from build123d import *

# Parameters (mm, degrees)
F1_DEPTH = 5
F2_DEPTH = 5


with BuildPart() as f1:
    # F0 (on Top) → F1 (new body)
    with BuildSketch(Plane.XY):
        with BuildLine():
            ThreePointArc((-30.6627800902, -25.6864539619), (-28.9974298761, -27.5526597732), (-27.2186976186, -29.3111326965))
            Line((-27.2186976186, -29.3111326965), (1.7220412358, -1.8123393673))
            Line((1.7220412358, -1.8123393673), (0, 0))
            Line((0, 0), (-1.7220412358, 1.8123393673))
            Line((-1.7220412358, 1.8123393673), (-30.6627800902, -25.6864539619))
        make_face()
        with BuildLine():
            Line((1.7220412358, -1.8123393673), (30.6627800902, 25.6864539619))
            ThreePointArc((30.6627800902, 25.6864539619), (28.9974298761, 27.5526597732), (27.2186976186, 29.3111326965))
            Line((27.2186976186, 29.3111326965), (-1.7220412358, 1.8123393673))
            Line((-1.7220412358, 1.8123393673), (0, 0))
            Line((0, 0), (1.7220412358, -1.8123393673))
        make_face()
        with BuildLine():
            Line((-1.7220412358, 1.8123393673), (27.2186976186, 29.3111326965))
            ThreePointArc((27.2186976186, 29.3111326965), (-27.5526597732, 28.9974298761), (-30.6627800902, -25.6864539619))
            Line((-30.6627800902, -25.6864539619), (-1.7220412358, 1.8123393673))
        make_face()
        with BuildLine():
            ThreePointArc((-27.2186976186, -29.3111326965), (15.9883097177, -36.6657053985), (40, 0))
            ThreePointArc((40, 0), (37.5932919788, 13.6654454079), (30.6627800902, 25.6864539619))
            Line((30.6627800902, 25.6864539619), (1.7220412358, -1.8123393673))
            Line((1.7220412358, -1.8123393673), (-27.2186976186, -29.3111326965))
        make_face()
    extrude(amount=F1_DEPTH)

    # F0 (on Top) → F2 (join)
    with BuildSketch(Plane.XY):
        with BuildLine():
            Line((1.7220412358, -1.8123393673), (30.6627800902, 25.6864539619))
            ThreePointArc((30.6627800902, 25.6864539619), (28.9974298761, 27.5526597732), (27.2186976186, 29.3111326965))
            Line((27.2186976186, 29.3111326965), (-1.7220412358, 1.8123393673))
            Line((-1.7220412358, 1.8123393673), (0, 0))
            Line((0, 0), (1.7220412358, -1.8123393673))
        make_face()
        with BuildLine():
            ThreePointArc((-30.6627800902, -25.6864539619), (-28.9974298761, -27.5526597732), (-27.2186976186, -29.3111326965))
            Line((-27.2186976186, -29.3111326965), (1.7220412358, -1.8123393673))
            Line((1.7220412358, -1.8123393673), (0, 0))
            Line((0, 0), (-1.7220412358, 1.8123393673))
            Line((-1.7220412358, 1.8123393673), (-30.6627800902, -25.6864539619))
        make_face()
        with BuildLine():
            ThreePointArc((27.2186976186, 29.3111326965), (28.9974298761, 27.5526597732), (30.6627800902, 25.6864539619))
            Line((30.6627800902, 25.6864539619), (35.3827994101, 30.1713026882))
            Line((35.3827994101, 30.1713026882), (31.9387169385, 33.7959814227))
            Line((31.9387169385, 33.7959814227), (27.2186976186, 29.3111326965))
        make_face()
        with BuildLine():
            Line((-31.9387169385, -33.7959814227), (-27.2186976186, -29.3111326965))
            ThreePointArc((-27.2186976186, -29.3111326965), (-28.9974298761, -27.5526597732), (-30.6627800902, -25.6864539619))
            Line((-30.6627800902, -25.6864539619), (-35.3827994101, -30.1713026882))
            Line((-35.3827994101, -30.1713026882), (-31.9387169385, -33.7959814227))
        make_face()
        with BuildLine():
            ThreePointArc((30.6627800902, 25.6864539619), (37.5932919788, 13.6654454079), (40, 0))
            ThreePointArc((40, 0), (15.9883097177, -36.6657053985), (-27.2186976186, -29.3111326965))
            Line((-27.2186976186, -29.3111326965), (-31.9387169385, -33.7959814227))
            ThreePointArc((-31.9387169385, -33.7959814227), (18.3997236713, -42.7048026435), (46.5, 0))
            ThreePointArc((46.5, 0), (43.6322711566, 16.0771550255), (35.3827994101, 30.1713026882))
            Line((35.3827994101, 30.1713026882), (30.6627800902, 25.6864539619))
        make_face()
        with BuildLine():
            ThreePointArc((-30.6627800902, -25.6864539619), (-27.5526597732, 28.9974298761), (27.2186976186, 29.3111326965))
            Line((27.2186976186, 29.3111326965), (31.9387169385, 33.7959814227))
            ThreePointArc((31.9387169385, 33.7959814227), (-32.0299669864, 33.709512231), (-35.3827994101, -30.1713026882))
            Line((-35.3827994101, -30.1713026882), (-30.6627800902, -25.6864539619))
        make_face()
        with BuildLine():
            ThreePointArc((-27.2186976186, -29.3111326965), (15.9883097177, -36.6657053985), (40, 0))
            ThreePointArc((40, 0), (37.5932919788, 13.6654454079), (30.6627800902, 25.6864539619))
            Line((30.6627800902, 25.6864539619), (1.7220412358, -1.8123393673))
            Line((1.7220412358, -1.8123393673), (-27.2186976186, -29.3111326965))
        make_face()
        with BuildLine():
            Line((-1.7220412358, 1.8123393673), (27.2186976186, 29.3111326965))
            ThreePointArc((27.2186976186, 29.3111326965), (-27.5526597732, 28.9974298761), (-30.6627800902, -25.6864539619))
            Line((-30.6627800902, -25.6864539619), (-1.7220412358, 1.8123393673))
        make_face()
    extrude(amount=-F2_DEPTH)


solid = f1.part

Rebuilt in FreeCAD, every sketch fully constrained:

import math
import FreeCAD as App
import Part
import Sketcher

V = App.Vector
Q = App.Units.Quantity

doc = App.newDocument("Part")
body = doc.addObject("PartDesign::Body", "Body")

# Sketch on XY plane
sketch1 = body.newObject("Sketcher::SketchObject", "Sketch")
sketch1.AttachmentSupport = (doc.getObject("XY_Plane"), [""])
sketch1.MapMode = "FlatFace"
sketch1.addGeometry(Part.ArcOfCircle(Part.Circle(V(0, 0, 0), V(0, 0, 1), 40), math.radians(-140.05), math.radians(-132.88)), False)
sketch1.addGeometry(Part.ArcOfCircle(Part.Circle(V(0, 0, 0), V(0, 0, 1), 40), math.radians(-133), math.radians(40)), False)
sketch1.addGeometry(Part.ArcOfCircle(Part.Circle(V(0, 0, 0), V(0, 0, 1), 40), math.radians(39.95), math.radians(47.12)), False)
sketch1.addGeometry(Part.ArcOfCircle(Part.Circle(V(0, 0, 0), V(0, 0, 1), 40), math.radians(47), math.radians(220)), False)
sketch1.addConstraint(Sketcher.Constraint("Tangent", 0, 2, 1, 1))
sketch1.addConstraint(Sketcher.Constraint("Tangent", 1, 2, 2, 1))
sketch1.addConstraint(Sketcher.Constraint("Tangent", 2, 2, 3, 1))
sketch1.addConstraint(Sketcher.Constraint("Tangent", 3, 2, 0, 1))
sketch1.addConstraint(Sketcher.Constraint("Coincident", 0, 3, -1, 1))
sketch1.addConstraint(Sketcher.Constraint("Equal", 0, 1))
sketch1.addConstraint(Sketcher.Constraint("Radius", 0, Q("40 mm")))
sketch1.addConstraint(Sketcher.Constraint("DistanceX", -1, 1, 1, 2, Q("30.66278 mm")))
sketch1.addConstraint(Sketcher.Constraint("DistanceX", 3, 2, -1, 1, Q("30.66278 mm")))
sketch1.addConstraint(Sketcher.Constraint("DistanceY", 1, 2, 2, 2, Q("3.624679 mm")))
sketch1.addConstraint(Sketcher.Constraint("DistanceY", 0, 2, 3, 2, Q("3.624679 mm")))
pad1 = body.newObject("PartDesign::Pad", "Pad")
pad1.Profile = sketch1
pad1.Length = 5

# Sketch on XY plane
sketch2 = body.newObject("Sketcher::SketchObject", "Sketch001")
sketch2.AttachmentSupport = (doc.getObject("XY_Plane"), [""])
sketch2.MapMode = "FlatFace"
sketch2.addGeometry(Part.LineSegment(V(-35.4, -30.2, 0), V(-31.9, -33.8, 0)), False)
sketch2.addGeometry(Part.ArcOfCircle(Part.Circle(V(0, 0, 0), V(0, 0, 1), 46.5), math.radians(-133), math.radians(0)), False)
sketch2.addGeometry(Part.ArcOfCircle(Part.Circle(V(0, 0, 0), V(0, 0, 1), 46.5), math.radians(0), math.radians(40)), False)
sketch2.addGeometry(Part.LineSegment(V(35.4, 30.2, 0), V(31.9, 33.8, 0)), False)
sketch2.addGeometry(Part.ArcOfCircle(Part.Circle(V(0, 0, 0), V(0, 0, 1), 46.5), math.radians(47), math.radians(220)), False)
sketch2.addConstraint(Sketcher.Constraint("Coincident", 0, 2, 1, 1))
sketch2.addConstraint(Sketcher.Constraint("Tangent", 1, 2, 2, 1))
sketch2.addConstraint(Sketcher.Constraint("Coincident", 2, 2, 3, 1))
sketch2.addConstraint(Sketcher.Constraint("Coincident", 3, 2, 4, 1))
sketch2.addConstraint(Sketcher.Constraint("Coincident", 4, 2, 0, 1))
sketch2.addConstraint(Sketcher.Constraint("Coincident", 1, 3, -1, 1))
sketch2.addConstraint(Sketcher.Constraint("Coincident", 4, 3, -1, 1))
sketch2.addConstraint(Sketcher.Constraint("Equal", 1, 2))
sketch2.addConstraint(Sketcher.Constraint("Equal", 2, 4))
sketch2.addConstraint(Sketcher.Constraint("PointOnObject", 1, 2, -1))
sketch2.addConstraint(Sketcher.Constraint("Parallel", 0, 3))
sketch2.addConstraint(Sketcher.Constraint("Equal", 0, 3))
sketch2.addConstraint(Sketcher.Constraint("Radius", 1, Q("46.5 mm")))
sketch2.addConstraint(Sketcher.Constraint("Distance", 0, Q("5 mm")))
sketch2.addConstraint(Sketcher.Constraint("DistanceX", -1, 1, 2, 2, Q("35.382799 mm")))
pad2 = body.newObject("PartDesign::Pad", "Pad001")
pad2.Profile = sketch2
pad2.Length = 5
pad2.Reversed = True

doc.recompute()
